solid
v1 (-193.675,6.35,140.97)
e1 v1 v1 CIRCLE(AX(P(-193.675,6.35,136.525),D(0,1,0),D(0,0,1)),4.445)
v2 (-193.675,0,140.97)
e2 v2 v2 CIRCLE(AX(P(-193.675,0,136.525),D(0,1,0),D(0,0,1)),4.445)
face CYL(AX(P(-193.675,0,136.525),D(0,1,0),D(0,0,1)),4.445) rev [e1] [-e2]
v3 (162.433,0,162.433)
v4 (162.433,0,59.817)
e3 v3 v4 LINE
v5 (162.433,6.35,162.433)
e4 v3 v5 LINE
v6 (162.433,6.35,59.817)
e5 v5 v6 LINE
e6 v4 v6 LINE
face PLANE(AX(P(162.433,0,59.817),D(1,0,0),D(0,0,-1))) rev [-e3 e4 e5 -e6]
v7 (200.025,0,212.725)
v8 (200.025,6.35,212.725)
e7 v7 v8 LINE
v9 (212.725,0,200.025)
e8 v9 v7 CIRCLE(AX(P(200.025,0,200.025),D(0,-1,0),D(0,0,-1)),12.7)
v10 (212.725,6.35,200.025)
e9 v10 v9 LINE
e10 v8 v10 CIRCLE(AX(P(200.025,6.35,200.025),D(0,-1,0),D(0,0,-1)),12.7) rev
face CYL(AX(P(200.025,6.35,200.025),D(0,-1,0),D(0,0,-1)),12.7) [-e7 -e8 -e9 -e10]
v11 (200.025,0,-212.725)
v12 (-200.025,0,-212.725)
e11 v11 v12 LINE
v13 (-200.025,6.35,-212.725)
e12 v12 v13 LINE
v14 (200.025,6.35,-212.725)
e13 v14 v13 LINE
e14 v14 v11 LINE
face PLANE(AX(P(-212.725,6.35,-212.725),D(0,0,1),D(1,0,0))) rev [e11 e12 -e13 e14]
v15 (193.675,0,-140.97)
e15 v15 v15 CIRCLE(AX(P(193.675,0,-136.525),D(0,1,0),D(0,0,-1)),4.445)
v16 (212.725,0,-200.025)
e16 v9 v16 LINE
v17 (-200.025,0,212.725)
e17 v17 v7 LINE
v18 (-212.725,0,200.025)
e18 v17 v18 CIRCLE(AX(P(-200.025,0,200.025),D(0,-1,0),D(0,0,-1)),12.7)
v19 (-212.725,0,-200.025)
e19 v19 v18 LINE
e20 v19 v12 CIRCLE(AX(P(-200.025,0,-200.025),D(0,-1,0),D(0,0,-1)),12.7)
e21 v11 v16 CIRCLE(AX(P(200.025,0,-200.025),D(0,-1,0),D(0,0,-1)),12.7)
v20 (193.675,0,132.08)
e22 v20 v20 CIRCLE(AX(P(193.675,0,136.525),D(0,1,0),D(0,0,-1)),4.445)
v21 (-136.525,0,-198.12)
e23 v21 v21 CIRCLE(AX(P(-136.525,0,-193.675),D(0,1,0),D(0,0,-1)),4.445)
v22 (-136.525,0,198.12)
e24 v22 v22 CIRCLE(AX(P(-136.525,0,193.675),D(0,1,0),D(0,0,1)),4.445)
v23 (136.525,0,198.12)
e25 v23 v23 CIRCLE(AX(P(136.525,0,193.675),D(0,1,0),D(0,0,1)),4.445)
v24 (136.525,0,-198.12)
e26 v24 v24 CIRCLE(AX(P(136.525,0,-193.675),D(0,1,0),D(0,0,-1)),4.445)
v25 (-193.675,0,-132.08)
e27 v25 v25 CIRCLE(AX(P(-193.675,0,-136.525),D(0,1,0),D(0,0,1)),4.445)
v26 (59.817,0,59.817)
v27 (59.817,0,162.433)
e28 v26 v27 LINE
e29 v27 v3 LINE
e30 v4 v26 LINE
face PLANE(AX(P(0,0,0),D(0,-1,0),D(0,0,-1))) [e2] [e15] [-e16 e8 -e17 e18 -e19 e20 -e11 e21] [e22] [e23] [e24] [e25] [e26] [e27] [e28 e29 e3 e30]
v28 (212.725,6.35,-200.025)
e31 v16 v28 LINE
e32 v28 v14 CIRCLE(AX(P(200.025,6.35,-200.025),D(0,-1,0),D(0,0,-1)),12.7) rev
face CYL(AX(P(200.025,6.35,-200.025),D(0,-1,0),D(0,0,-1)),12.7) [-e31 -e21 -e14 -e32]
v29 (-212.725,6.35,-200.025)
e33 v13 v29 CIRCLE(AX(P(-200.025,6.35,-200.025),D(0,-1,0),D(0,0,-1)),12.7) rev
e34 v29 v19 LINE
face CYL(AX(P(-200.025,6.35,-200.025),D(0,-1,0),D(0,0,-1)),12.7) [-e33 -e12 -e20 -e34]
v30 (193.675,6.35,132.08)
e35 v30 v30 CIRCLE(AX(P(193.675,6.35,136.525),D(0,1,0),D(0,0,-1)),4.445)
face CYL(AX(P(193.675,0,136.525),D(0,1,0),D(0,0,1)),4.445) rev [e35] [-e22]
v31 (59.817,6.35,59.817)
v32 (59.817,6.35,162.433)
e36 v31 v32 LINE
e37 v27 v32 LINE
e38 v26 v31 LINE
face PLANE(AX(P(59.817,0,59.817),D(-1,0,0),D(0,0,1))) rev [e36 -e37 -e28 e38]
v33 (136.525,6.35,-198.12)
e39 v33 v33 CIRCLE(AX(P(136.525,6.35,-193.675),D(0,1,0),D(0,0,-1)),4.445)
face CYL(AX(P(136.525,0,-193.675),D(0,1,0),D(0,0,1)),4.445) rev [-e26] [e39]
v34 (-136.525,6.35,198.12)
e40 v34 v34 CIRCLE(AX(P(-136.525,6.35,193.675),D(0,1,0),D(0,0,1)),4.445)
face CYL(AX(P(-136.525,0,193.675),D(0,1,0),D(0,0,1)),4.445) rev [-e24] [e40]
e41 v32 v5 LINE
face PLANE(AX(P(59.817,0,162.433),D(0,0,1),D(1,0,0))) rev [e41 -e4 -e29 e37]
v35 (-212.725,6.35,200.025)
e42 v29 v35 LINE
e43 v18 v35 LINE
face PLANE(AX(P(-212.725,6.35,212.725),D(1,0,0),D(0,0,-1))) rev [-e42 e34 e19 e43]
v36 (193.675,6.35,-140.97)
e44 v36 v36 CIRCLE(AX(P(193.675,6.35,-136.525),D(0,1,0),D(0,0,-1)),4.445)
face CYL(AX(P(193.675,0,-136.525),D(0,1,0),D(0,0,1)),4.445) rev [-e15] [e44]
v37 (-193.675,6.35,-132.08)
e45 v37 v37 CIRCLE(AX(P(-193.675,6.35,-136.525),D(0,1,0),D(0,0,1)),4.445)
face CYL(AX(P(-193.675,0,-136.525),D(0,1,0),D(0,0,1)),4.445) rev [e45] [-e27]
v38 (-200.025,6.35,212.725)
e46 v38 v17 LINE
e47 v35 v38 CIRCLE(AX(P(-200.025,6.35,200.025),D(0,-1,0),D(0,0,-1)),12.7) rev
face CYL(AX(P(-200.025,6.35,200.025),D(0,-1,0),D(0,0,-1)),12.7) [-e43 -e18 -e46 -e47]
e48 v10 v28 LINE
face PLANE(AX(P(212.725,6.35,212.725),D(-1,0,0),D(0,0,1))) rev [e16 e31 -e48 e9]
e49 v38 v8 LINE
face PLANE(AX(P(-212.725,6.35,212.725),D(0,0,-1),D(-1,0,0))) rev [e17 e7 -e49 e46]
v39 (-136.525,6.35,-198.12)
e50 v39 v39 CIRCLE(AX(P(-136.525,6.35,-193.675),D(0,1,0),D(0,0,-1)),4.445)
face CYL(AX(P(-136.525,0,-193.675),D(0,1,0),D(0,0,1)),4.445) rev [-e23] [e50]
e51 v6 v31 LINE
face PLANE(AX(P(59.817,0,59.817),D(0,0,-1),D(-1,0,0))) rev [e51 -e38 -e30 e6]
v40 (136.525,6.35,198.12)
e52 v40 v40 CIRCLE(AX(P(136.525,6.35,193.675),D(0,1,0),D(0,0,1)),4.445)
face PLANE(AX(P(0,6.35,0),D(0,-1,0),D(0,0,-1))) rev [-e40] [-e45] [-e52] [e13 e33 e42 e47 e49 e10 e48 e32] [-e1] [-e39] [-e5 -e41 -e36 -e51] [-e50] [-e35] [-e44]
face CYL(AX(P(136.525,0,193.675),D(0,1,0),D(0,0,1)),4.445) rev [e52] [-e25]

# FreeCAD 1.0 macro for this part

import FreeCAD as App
import Part
import Sketcher
from FreeCAD import Vector
Q = App.Units.Quantity


def edges_at(feature, points):
    """Names of the edges that pass closest to the given points."""
    edges = feature.Shape.Edges
    near = lambda p: min(range(len(edges)), key=lambda i: edges[i].distToShape(Part.Vertex(*p))[0])
    return sorted({f"Edge{near(p) + 1}" for p in points})

doc = App.newDocument("Part")
body = doc.addObject("PartDesign::Body", "Body")

# Sketch on XZ plane
sketch1 = body.newObject("Sketcher::SketchObject", "Sketch")
sketch1.AttachmentSupport = (doc.getObject("XZ_Plane"), [""])
sketch1.MapMode = "FlatFace"
sketch1.addGeometry([
    Part.LineSegment(Vector(-213, -213, 0), Vector(-213, 213, 0)),
    Part.LineSegment(Vector(-213, 213, 0), Vector(213, 213, 0)),
    Part.LineSegment(Vector(213, 213, 0), Vector(213, -213, 0)),
    Part.LineSegment(Vector(213, -213, 0), Vector(-213, -213, 0)),
], False)
sketch1.addConstraint([
    Sketcher.Constraint("Coincident", 0, 2, 1, 1),
    Sketcher.Constraint("Coincident", 1, 2, 2, 1),
    Sketcher.Constraint("Coincident", 2, 2, 3, 1),
    Sketcher.Constraint("Coincident", 3, 2, 0, 1),
    Sketcher.Constraint("Vertical", 0),
    Sketcher.Constraint("Horizontal", 1),
    Sketcher.Constraint("Vertical", 2),
    Sketcher.Constraint("Horizontal", 3),
    Sketcher.Constraint("Symmetric", 0, 2, 2, 2, -1, 1),
    Sketcher.Constraint("Equal", 3, 0),
    Sketcher.Constraint("DistanceX", 1, 1, 1, 2, Q("16.75 in")),
])
pad1 = body.newObject("PartDesign::Pad", "Pad")
pad1.Profile = sketch1
pad1.Length = Q("0.25 in")
pad1.Reversed = True

# Sketch on XZ plane
sketch2 = body.newObject("Sketcher::SketchObject", "Sketch001")
sketch2.AttachmentSupport = (doc.getObject("XZ_Plane"), [""])
sketch2.MapMode = "FlatFace"
sketch2.AttachmentOffset = App.Placement(Vector(0, 0, -0.25 * 25.4), App.Rotation())
sketch2.addGeometry([
    Part.Circle(Vector(-193.7, -136.5, 0), Vector(0, 0, 1), 4.4),  # 0
    Part.Circle(Vector(-193.7, 136.5, 0), Vector(0, 0, 1), 4.4),  # 1
    Part.Circle(Vector(-136.5, 193.7, 0), Vector(0, 0, 1), 4.4),  # 2
    Part.Circle(Vector(136.5, 193.7, 0), Vector(0, 0, 1), 4.4),  # 3
    Part.Circle(Vector(193.7, 136.5, 0), Vector(0, 0, 1), 4.4),  # 4
    Part.Circle(Vector(193.7, -136.5, 0), Vector(0, 0, 1), 4.4),  # 5
    Part.Circle(Vector(136.5, -193.7, 0), Vector(0, 0, 1), 4.4),  # 6
    Part.Circle(Vector(-136.5, -193.7, 0), Vector(0, 0, 1), 4.4),  # 7
], False)
sketch2.addConstraint([
    Sketcher.Constraint("Equal", 0, 1),
    Sketcher.Constraint("Equal", 1, 2),
    Sketcher.Constraint("Equal", 2, 3),
    Sketcher.Constraint("Equal", 3, 4),
    Sketcher.Constraint("Equal", 4, 5),
    Sketcher.Constraint("Equal", 5, 6),
    Sketcher.Constraint("Equal", 6, 7),
    Sketcher.Constraint("Symmetric", 0, 3, 4, 3, -1, 1),
    Sketcher.Constraint("Symmetric", 1, 3, 5, 3, -1, 1),
    Sketcher.Constraint("Symmetric", 2, 3, 6, 3, -1, 1),
    Sketcher.Constraint("Symmetric", 3, 3, 7, 3, -1, 1),
    Sketcher.Constraint("Symmetric", 2, 3, 3, 3, -2),
    Sketcher.Constraint("Symmetric", 1, 3, 4, 3, -2),
    Sketcher.Constraint("Diameter", 0, Q("0.35 in")),
    Sketcher.Constraint("DistanceY", 0, 3, 2, 3, Q("13 in")),
    Sketcher.Constraint("DistanceX", 1, 3, 3, 3, Q("13 in")),
    Sketcher.Constraint("DistanceY", 0, 3, 1, 3, Q("10.75 in")),
    Sketcher.Constraint("DistanceX", 1, 3, 2, 3, Q("2.25 in")),
])
pocket1 = body.newObject("PartDesign::Pocket", "Pocket")
pocket1.Profile = sketch2
pocket1.Type = "ThroughAll"
pocket1.Reversed = True

# Sketch on XZ plane
sketch3 = body.newObject("Sketcher::SketchObject", "Sketch002")
sketch3.AttachmentSupport = (doc.getObject("XZ_Plane"), [""])
sketch3.MapMode = "FlatFace"
sketch3.AttachmentOffset = App.Placement(Vector(0, 0, -0.25 * 25.4), App.Rotation())
sketch3.addGeometry([
    Part.LineSegment(Vector(60, 60, 0), Vector(60, 162, 0)),
    Part.LineSegment(Vector(60, 162, 0), Vector(162, 162, 0)),
    Part.LineSegment(Vector(162, 162, 0), Vector(162, 60, 0)),
    Part.LineSegment(Vector(162, 60, 0), Vector(60, 60, 0)),
], False)
sketch3.addConstraint([
    Sketcher.Constraint("Coincident", 0, 2, 1, 1),
    Sketcher.Constraint("Coincident", 1, 2, 2, 1),
    Sketcher.Constraint("Coincident", 2, 2, 3, 1),
    Sketcher.Constraint("Coincident", 3, 2, 0, 1),
    Sketcher.Constraint("Vertical", 0),
    Sketcher.Constraint("Horizontal", 1),
    Sketcher.Constraint("Vertical", 2),
    Sketcher.Constraint("Horizontal", 3),
    Sketcher.Constraint("Equal", 3, 0),
    Sketcher.Constraint("DistanceX", 1, 1, 1, 2, Q("4.04 in")),
    Sketcher.Constraint("DistanceX", -1, 1, 0, 2, Q("2.355 in")),
    Sketcher.Constraint("DistanceY", -1, 1, 0, 2, Q("6.395 in")),
])
pocket2 = body.newObject("PartDesign::Pocket", "Pocket001")
pocket2.Profile = sketch3
pocket2.Type = "ThroughAll"
pocket2.Reversed = True
doc.recompute()

fillet = body.newObject("PartDesign::Fillet", "Fillet")
fillet.Base = (pocket2, edges_at(pocket2, [
    (212.725, 3.175, 212.725),
    (-212.725, 3.175, 212.725),
    (-212.725, 3.175, -212.725),
    (212.725, 3.175, -212.725),
]))
fillet.Radius = Q("0.5 in")

doc.recompute()
